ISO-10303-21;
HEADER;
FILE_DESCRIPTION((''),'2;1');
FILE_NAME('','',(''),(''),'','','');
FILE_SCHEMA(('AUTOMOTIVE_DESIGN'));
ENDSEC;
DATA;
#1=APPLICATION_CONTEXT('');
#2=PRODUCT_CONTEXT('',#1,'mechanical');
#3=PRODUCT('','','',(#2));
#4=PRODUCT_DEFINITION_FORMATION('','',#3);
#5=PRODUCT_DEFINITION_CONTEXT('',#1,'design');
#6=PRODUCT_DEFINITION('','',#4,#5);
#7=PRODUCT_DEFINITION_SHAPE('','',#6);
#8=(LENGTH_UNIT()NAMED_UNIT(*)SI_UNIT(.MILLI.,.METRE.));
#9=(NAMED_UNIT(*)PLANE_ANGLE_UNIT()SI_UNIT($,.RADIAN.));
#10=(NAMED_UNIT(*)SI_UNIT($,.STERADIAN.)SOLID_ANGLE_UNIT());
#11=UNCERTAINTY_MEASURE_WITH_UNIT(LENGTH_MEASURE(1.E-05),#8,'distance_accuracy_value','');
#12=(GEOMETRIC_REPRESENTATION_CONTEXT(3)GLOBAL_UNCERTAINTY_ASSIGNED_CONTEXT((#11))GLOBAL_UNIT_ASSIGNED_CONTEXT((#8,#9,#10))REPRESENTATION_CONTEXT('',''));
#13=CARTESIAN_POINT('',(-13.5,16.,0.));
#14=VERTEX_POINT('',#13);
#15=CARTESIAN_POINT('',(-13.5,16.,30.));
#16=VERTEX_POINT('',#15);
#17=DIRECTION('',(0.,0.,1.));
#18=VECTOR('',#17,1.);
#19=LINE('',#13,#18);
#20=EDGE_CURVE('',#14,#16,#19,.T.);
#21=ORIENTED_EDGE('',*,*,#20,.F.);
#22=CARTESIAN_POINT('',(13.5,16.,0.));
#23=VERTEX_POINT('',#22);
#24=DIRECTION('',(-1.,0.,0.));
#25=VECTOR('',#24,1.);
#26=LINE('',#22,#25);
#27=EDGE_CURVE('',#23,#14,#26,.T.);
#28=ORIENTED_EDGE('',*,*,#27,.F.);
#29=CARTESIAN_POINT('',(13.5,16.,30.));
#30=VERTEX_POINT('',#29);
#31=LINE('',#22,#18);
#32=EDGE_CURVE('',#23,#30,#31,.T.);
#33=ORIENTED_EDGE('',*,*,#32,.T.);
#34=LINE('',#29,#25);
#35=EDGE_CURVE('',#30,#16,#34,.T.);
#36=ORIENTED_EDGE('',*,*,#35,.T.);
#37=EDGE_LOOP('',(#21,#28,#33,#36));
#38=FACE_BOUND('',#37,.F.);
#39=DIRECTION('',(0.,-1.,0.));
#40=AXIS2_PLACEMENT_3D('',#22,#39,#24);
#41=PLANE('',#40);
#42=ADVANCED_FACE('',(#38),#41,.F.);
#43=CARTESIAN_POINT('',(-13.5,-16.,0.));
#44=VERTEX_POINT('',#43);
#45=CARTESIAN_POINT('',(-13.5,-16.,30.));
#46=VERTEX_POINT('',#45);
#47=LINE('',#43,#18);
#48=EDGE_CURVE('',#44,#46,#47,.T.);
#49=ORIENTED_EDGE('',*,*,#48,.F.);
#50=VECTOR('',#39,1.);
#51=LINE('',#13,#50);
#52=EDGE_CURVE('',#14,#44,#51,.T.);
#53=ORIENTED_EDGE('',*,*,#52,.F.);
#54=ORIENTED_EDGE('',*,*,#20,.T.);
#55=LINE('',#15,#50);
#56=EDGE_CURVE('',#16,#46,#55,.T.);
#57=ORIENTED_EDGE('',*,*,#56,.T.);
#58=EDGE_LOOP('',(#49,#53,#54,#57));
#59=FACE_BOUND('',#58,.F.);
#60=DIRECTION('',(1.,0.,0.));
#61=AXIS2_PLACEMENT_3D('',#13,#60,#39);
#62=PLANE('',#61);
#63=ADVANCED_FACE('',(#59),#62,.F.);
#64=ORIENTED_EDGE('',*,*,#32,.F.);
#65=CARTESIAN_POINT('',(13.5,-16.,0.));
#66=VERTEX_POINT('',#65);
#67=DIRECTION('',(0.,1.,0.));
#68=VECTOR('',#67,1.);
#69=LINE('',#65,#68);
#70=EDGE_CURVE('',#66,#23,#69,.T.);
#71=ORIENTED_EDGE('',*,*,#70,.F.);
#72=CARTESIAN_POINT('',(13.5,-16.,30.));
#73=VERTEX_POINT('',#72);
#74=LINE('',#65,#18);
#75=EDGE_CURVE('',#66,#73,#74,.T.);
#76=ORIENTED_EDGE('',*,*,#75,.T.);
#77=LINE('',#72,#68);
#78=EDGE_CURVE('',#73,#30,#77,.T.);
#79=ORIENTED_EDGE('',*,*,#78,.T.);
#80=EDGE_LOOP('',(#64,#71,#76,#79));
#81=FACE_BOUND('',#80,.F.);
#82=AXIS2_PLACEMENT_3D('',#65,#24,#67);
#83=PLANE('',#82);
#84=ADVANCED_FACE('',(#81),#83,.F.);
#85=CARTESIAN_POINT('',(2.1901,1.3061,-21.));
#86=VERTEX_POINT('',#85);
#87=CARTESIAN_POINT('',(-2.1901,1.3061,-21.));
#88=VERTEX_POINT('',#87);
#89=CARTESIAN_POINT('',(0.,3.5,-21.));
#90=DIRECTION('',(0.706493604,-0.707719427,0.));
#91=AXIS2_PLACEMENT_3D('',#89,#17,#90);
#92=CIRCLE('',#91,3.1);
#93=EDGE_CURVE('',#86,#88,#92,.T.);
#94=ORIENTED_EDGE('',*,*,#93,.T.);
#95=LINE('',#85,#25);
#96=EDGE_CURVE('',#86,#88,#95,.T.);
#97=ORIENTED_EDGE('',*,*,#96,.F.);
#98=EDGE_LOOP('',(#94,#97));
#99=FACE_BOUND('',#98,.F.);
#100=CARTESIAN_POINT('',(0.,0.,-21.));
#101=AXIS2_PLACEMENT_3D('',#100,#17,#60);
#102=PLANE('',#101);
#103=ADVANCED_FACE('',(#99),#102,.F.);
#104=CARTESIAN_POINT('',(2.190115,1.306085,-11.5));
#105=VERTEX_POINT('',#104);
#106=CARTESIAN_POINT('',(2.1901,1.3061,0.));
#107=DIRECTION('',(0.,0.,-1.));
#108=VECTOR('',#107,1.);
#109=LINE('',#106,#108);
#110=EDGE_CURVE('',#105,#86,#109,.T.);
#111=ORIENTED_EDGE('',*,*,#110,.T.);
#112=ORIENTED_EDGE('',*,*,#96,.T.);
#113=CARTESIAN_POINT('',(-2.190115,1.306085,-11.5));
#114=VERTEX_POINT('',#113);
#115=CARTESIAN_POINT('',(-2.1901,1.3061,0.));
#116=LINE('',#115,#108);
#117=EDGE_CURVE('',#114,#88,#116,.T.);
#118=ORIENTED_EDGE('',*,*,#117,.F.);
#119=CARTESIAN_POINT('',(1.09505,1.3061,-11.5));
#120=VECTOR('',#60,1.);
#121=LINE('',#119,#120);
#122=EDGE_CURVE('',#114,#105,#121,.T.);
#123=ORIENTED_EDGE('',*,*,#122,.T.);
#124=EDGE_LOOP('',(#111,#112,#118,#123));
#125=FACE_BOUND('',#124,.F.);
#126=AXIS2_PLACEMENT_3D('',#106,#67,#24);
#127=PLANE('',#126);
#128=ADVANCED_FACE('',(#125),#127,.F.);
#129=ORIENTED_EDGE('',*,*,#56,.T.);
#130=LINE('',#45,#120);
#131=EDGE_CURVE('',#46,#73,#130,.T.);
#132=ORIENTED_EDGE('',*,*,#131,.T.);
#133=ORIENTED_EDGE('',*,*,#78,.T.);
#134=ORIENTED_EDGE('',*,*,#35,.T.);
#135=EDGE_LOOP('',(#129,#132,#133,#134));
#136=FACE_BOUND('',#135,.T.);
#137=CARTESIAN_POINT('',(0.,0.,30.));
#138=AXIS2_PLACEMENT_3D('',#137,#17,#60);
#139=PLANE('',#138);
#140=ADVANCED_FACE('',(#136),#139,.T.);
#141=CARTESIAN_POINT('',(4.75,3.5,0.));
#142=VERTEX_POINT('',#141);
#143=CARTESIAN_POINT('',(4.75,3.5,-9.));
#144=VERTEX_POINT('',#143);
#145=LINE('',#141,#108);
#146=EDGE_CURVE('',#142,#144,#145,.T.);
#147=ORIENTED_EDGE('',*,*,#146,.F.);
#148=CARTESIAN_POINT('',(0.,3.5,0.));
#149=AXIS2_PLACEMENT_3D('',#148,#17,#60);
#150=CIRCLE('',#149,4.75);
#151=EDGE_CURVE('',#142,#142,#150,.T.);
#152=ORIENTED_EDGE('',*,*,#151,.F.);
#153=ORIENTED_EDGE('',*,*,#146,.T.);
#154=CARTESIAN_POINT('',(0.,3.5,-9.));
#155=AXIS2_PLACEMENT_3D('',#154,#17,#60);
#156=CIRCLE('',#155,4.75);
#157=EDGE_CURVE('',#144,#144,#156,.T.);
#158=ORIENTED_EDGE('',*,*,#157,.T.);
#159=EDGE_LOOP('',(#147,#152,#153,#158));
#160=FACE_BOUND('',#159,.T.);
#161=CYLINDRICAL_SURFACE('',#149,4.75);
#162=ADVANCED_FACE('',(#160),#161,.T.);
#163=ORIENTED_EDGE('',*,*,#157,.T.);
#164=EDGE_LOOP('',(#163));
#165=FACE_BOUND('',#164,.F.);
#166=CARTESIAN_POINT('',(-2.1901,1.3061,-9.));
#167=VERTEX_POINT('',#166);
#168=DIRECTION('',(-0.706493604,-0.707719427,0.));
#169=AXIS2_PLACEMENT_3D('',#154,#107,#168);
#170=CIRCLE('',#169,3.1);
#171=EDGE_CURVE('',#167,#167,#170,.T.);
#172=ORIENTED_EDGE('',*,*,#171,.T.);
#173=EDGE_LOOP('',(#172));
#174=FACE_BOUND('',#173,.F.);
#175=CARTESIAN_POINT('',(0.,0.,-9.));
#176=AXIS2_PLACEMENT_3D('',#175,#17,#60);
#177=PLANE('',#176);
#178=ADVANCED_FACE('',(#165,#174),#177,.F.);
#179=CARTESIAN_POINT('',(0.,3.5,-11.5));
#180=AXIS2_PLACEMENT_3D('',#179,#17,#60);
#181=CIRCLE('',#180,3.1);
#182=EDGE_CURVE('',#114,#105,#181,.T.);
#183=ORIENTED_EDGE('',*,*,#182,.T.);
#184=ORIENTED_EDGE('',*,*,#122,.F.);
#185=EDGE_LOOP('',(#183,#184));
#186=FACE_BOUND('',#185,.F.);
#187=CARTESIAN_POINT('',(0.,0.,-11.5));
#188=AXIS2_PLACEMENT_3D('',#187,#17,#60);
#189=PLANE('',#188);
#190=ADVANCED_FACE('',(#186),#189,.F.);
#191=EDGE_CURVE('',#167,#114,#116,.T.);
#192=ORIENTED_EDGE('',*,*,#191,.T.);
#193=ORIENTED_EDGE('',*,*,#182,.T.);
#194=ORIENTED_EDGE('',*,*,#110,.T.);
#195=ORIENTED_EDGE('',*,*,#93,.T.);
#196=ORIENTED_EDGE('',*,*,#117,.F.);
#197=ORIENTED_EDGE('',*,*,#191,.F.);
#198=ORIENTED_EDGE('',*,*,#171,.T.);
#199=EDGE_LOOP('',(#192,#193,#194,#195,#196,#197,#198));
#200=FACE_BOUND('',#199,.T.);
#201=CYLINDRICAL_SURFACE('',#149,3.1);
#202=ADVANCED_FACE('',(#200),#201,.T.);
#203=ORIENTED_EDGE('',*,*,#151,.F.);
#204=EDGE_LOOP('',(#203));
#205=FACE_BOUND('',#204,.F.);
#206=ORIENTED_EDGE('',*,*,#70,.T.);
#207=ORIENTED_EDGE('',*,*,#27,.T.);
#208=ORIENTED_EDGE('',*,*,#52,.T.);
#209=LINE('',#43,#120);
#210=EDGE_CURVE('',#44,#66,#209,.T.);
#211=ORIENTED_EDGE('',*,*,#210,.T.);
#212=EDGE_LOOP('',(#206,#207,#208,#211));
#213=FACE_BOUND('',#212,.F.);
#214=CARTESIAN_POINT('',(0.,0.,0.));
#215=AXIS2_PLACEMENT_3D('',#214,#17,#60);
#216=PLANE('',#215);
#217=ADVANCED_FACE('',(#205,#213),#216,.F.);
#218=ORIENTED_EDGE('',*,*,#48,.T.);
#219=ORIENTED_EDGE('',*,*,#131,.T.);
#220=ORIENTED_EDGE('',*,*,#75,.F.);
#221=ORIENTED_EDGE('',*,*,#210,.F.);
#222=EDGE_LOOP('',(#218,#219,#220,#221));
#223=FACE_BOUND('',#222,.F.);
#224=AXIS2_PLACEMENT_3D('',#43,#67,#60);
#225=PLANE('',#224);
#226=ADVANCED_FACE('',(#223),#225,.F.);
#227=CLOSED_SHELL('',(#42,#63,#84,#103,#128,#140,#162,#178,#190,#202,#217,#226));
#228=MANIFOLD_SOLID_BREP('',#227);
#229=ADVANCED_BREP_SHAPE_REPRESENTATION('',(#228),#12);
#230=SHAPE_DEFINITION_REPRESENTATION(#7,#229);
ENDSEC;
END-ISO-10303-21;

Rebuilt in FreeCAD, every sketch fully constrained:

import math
import FreeCAD as App
import Part
import Sketcher

doc = App.newDocument("Part")
body = doc.addObject("PartDesign::Body", "Body")

# Sketch on XY plane
sketch1 = doc.addObject("Sketcher::SketchObject", "Sketch")
body.addObject(sketch1)
sketch1.AttachmentSupport = (doc.XY_Plane, [""])
sketch1.MapMode = "FlatFace"
sketch1.addGeometry([
    Part.LineSegment(App.Vector(-13.5, 16, 0), App.Vector(-13.5, -16, 0)),
    Part.LineSegment(App.Vector(-13.5, -16, 0), App.Vector(13.5, -16, 0)),
    Part.LineSegment(App.Vector(13.5, -16, 0), App.Vector(13.5, 16, 0)),
    Part.LineSegment(App.Vector(13.5, 16, 0), App.Vector(-13.5, 16, 0)),
], False)
sketch1.addConstraint([
    Sketcher.Constraint("Coincident", 0, 2, 1, 1),
    Sketcher.Constraint("Coincident", 1, 2, 2, 1),
    Sketcher.Constraint("Coincident", 2, 2, 3, 1),
    Sketcher.Constraint("Coincident", 3, 2, 0, 1),
    Sketcher.Constraint("Vertical", 0),
    Sketcher.Constraint("Horizontal", 1),
    Sketcher.Constraint("Vertical", 2),
    Sketcher.Constraint("Horizontal", 3),
    Sketcher.Constraint("Symmetric", 0, 2, 2, 2, -1, 1),
    Sketcher.Constraint("DistanceX", 1, 1, 1, 2, 27.0),
    Sketcher.Constraint("DistanceY", 0, 2, 0, 1, 32.0),
])
pad1 = doc.addObject("PartDesign::Pad", "Pad")
body.addObject(pad1)
pad1.Profile = sketch1
pad1.Length = 30

# Sketch on XY plane
sketch2 = doc.addObject("Sketcher::SketchObject", "Sketch001")
body.addObject(sketch2)
sketch2.AttachmentSupport = (doc.XY_Plane, [""])
sketch2.MapMode = "FlatFace"
sketch2.addGeometry(Part.Circle(App.Vector(0, 3.5, 0), App.Vector(0, 0, 1), 4.75), False)
sketch2.addConstraint([
    Sketcher.Constraint("PointOnObject", 0, 3, -2),
    Sketcher.Constraint("Diameter", 0, 9.5),
    Sketcher.Constraint("DistanceY", -1, 1, 0, 3, 3.5),
])
pad2 = doc.addObject("PartDesign::Pad", "Pad001")
body.addObject(pad2)
pad2.Profile = sketch2
pad2.Length = 9
pad2.Reversed = True

# Sketch on XY plane
sketch3 = doc.addObject("Sketcher::SketchObject", "Sketch002")
body.addObject(sketch3)
sketch3.AttachmentSupport = (doc.XY_Plane, [""])
sketch3.MapMode = "FlatFace"
sketch3.addGeometry([
    Part.ArcOfCircle(Part.Circle(App.Vector(0, 3.5, 0), App.Vector(0, 0, 1), 3.1), math.radians(-45.049663), math.radians(225.049663)),
    Part.LineSegment(App.Vector(2.1901, 1.3061, 0), App.Vector(-2.1901, 1.3061, 0)),
], False)
sketch3.addConstraint([
    Sketcher.Constraint("Coincident", 0, 1, 1, 1),
    Sketcher.Constraint("Coincident", 1, 2, 0, 2),
    Sketcher.Constraint("Horizontal", 1),
    Sketcher.Constraint("PointOnObject", 0, 3, -2),
    Sketcher.Constraint("Radius", 0, 3.1),
    Sketcher.Constraint("DistanceY", -1, 1, 0, 3, 3.5),
    Sketcher.Constraint("DistanceX", 1, 2, -1, 1, 2.19),
])
pad3 = doc.addObject("PartDesign::Pad", "Pad002")
body.addObject(pad3)
pad3.Profile = sketch3
pad3.Length = 21
pad3.Reversed = True

# Sketch on XY plane
sketch4 = doc.addObject("Sketcher::SketchObject", "Sketch003")
body.addObject(sketch4)
sketch4.AttachmentSupport = (doc.XY_Plane, [""])
sketch4.MapMode = "FlatFace"
sketch4.addGeometry(Part.Circle(App.Vector(0, 3.5, 0), App.Vector(0, 0, 1), 3.1), False)
sketch4.addConstraint([
    Sketcher.Constraint("PointOnObject", 0, 3, -2),
    Sketcher.Constraint("Diameter", 0, 6.2),
    Sketcher.Constraint("DistanceY", -1, 1, 0, 3, 3.5),
])
pad4 = doc.addObject("PartDesign::Pad", "Pad003")
body.addObject(pad4)
pad4.Profile = sketch4
pad4.Length = 11.5
pad4.Reversed = True

doc.recompute()
